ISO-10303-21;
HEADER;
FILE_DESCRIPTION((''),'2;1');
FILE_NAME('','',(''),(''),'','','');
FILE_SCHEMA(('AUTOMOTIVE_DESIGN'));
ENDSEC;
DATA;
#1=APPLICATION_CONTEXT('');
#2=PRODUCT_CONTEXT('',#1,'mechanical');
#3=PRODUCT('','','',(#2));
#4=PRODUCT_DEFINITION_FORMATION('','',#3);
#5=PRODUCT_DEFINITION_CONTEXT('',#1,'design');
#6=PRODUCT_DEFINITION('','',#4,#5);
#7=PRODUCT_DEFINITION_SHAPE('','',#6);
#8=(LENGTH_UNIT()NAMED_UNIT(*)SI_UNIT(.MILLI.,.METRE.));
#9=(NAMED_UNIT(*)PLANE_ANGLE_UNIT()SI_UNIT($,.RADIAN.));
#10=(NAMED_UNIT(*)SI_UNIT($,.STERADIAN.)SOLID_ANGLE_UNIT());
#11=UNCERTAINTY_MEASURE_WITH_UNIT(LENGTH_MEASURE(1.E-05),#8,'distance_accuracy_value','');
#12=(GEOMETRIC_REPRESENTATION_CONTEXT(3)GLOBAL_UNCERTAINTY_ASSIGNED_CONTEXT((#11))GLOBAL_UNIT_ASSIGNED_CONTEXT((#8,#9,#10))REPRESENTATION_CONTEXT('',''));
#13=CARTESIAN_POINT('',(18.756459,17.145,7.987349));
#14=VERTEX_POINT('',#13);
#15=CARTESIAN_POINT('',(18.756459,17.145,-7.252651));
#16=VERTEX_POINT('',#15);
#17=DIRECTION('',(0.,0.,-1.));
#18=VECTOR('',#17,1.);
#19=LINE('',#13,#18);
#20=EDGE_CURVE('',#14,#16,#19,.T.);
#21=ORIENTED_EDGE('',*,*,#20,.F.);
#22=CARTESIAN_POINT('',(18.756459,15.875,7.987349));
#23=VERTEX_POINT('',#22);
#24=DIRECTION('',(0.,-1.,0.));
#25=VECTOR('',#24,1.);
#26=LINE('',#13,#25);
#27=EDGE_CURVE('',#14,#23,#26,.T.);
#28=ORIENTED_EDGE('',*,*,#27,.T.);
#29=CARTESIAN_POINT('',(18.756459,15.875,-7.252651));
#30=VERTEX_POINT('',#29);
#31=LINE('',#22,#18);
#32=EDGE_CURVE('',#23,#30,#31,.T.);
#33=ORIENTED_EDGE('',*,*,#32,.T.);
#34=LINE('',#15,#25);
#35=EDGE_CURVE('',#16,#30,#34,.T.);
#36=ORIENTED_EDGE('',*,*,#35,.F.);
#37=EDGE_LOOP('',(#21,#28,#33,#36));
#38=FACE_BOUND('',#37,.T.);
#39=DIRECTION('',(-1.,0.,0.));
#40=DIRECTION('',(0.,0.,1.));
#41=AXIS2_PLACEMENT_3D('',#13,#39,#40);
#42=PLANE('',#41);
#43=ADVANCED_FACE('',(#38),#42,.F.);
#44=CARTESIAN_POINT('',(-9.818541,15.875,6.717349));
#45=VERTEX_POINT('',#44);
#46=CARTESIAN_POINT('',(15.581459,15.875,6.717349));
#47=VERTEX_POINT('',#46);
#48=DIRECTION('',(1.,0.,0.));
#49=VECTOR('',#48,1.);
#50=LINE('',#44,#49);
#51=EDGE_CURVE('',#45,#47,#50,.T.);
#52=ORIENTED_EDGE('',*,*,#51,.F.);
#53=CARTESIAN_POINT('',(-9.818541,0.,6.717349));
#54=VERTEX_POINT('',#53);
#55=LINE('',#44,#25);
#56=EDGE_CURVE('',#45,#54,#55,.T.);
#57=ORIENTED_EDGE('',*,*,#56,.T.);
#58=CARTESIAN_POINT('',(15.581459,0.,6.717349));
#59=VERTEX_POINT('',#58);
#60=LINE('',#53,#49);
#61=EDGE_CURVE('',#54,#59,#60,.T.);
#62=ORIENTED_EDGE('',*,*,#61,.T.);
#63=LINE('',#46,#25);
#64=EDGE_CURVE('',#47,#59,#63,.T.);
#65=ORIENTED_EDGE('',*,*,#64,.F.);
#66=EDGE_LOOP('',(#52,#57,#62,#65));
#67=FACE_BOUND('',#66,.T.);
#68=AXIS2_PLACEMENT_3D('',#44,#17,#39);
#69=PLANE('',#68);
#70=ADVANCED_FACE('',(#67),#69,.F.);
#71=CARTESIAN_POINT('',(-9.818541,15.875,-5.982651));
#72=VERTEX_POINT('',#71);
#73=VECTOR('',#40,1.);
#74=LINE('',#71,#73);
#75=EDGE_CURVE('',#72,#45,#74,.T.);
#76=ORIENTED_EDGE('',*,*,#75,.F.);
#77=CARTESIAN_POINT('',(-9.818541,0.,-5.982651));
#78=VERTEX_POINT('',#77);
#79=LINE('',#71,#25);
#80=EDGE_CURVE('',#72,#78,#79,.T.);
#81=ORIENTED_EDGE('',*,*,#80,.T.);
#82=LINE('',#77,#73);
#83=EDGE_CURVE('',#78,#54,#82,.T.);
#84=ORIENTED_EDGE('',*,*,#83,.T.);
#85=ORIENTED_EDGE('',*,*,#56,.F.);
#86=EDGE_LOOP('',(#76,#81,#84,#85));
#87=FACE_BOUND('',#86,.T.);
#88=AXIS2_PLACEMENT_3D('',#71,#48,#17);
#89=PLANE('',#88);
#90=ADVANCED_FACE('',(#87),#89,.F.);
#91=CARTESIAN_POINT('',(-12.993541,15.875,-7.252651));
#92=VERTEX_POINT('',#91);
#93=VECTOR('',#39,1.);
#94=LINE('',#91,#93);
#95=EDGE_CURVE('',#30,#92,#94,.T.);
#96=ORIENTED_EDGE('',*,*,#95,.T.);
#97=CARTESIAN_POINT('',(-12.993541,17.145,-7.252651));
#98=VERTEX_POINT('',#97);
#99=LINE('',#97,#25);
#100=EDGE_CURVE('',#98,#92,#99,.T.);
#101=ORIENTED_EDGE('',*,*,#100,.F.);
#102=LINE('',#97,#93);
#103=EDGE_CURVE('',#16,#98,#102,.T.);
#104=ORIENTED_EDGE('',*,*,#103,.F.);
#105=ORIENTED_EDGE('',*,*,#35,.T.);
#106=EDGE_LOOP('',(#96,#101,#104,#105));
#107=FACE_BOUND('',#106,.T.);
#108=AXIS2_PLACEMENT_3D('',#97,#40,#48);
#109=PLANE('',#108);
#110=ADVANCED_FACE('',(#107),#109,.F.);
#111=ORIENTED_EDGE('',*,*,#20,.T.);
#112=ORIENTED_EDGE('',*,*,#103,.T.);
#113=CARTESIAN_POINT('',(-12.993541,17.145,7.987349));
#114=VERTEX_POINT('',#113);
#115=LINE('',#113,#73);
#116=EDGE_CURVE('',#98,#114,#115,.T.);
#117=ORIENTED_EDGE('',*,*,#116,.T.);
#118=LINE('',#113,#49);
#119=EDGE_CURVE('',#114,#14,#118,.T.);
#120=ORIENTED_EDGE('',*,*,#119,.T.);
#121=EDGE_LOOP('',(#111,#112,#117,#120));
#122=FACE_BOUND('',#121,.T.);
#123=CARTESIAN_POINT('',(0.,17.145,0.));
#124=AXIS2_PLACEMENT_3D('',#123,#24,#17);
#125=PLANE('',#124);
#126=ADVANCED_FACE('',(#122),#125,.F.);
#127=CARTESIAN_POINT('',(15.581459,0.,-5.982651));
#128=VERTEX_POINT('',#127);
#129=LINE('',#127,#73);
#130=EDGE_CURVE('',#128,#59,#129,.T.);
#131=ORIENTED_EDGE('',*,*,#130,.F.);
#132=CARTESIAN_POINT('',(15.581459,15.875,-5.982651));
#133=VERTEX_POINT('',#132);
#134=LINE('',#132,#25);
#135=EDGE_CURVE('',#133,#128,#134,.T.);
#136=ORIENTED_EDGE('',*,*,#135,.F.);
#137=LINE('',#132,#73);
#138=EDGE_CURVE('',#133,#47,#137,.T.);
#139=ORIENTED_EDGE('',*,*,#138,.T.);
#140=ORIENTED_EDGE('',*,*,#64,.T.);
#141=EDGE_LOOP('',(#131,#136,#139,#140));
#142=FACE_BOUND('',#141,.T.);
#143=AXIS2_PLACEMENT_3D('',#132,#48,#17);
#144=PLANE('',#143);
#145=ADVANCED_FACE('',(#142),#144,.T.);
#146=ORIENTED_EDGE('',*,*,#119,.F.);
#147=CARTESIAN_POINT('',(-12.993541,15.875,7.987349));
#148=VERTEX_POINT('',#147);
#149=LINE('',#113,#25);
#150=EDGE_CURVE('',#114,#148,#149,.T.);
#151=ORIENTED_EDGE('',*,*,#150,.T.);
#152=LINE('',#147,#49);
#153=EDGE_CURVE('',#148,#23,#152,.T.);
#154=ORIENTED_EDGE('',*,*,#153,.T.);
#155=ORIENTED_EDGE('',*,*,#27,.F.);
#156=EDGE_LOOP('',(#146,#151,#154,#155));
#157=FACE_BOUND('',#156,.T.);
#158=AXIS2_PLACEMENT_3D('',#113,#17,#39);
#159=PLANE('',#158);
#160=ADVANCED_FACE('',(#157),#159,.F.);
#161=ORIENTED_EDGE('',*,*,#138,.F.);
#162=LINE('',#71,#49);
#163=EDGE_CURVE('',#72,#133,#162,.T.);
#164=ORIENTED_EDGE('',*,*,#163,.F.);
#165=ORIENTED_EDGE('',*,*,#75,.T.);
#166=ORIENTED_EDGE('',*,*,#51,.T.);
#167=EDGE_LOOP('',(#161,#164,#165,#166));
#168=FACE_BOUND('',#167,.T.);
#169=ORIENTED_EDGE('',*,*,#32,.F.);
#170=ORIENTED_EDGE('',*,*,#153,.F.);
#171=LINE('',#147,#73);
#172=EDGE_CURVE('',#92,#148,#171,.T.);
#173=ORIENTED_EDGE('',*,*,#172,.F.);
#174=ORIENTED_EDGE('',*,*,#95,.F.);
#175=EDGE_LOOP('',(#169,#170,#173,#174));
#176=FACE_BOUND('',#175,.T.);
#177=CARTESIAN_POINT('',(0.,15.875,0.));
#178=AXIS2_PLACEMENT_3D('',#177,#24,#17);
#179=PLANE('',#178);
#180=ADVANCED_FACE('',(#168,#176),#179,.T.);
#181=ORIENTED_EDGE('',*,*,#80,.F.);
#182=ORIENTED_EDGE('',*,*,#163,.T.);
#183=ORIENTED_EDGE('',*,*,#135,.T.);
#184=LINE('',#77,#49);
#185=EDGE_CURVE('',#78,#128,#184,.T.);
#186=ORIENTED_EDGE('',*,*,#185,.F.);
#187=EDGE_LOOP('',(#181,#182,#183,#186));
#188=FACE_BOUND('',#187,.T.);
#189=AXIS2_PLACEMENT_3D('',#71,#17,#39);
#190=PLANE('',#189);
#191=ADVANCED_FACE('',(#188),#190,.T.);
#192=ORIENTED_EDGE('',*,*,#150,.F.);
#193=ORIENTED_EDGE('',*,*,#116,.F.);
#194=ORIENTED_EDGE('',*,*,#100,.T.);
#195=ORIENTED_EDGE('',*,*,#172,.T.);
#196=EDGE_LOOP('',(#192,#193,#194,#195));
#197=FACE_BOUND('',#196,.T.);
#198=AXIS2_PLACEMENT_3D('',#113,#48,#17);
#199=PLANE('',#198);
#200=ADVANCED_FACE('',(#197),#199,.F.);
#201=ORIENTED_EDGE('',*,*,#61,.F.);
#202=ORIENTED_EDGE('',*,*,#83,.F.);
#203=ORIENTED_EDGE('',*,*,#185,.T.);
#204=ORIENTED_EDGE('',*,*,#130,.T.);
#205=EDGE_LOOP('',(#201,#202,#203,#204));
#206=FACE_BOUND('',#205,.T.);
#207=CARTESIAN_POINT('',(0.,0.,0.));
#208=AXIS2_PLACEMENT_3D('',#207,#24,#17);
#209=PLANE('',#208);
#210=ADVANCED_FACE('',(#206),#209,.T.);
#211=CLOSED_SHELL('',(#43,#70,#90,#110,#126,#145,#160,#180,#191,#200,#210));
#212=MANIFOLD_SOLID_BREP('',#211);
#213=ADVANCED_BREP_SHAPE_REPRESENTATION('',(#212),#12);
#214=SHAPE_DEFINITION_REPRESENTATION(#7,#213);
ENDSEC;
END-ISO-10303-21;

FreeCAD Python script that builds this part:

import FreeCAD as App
import Part
import Sketcher
Q = App.Units.Quantity


def add_polygon(sketch, points):
    """Adds a closed chain of lines whose ends are joined by coincident constraints."""
    first, n = sketch.GeometryCount, len(points)
    for a, b in zip(points, points[1:] + points[:1]):
        sketch.addGeometry(Part.LineSegment(App.Vector(*a, 0), App.Vector(*b, 0)), False)
    for i in range(n):
        sketch.addConstraint(Sketcher.Constraint("Coincident", first + i, 2, first + (i + 1) % n, 1))

doc = App.newDocument("Part")
params = doc.addObject("Spreadsheet::Sheet", "Params")
for row, (alias, value) in enumerate([
    ("sketch1_width", "1 in"),
    ("sketch1_height", "0.5 in"),
    ("pad1_length", "0.625 in"),
    ("sketch2_height", "0.6 in"),
    ("sketch2_width", "1.25 in"),
    ("pad2_length", "0.05 in"),
], start=1):
    params.set(f"A{row}", alias)
    params.set(f"B{row}", "=" + value)
    params.setAlias(f"B{row}", alias)

body = doc.addObject("PartDesign::Body", "Body")

sketch1 = body.newObject("Sketcher::SketchObject", "Sketch")
sketch1.AttachmentSupport = (doc.getObject("XZ_Plane"), [""])
sketch1.MapMode = "FlatFace"
add_polygon(sketch1, [(-10, -6), (-10, 7), (16, 7), (16, -6)])
sketch1.addConstraint(Sketcher.Constraint("Vertical", 0))
sketch1.addConstraint(Sketcher.Constraint("Horizontal", 1))
sketch1.addConstraint(Sketcher.Constraint("Vertical", 2))
sketch1.addConstraint(Sketcher.Constraint("Horizontal", 3))
sketch1.addConstraint(Sketcher.Constraint("DistanceX", 1, 1, 1, 2, Q("1 in")))
sketch1.addConstraint(Sketcher.Constraint("DistanceY", 0, 1, 0, 2, Q("0.5 in")))
sketch1.addConstraint(Sketcher.Constraint("DistanceX", 0, 2, -1, 1, Q("9.818541 mm")))
sketch1.addConstraint(Sketcher.Constraint("DistanceY", -1, 1, 0, 2, Q("6.717349 mm")))
sketch1.setExpression("Constraints[8]", "Params.sketch1_width")
sketch1.setExpression("Constraints[9]", "Params.sketch1_height")
pad1 = body.newObject("PartDesign::Pad", "Pad")
pad1.Profile = sketch1
pad1.setExpression("Length", "Params.pad1_length")
pad1.Reversed = True

sketch2 = body.newObject("Sketcher::SketchObject", "Sketch001")
sketch2.AttachmentSupport = (doc.getObject("XZ_Plane"), [""])
sketch2.MapMode = "FlatFace"
sketch2.AttachmentOffset = App.Placement(App.Vector(0, 0, -0.625 * 25.4), App.Rotation())
add_polygon(sketch2, [(-13, -7), (-13, 8), (19, 8), (19, -7)])
sketch2.addConstraint(Sketcher.Constraint("Vertical", 0))
sketch2.addConstraint(Sketcher.Constraint("Horizontal", 1))
sketch2.addConstraint(Sketcher.Constraint("Vertical", 2))
sketch2.addConstraint(Sketcher.Constraint("Horizontal", 3))
sketch2.addConstraint(Sketcher.Constraint("DistanceY", 0, 1, 0, 2, Q("0.6 in")))
sketch2.addConstraint(Sketcher.Constraint("DistanceX", 1, 1, 1, 2, Q("1.25 in")))
sketch2.addConstraint(Sketcher.Constraint("DistanceX", 0, 2, -1, 1, Q("12.993541 mm")))
sketch2.addConstraint(Sketcher.Constraint("DistanceY", -1, 1, 0, 2, Q("7.987349 mm")))
sketch2.setExpression("Constraints[8]", "Params.sketch2_height")
sketch2.setExpression("Constraints[9]", "Params.sketch2_width")
pad2 = body.newObject("PartDesign::Pad", "Pad001")
pad2.Profile = sketch2
pad2.setExpression("Length", "Params.pad2_length")
pad2.Reversed = True

doc.recompute()
